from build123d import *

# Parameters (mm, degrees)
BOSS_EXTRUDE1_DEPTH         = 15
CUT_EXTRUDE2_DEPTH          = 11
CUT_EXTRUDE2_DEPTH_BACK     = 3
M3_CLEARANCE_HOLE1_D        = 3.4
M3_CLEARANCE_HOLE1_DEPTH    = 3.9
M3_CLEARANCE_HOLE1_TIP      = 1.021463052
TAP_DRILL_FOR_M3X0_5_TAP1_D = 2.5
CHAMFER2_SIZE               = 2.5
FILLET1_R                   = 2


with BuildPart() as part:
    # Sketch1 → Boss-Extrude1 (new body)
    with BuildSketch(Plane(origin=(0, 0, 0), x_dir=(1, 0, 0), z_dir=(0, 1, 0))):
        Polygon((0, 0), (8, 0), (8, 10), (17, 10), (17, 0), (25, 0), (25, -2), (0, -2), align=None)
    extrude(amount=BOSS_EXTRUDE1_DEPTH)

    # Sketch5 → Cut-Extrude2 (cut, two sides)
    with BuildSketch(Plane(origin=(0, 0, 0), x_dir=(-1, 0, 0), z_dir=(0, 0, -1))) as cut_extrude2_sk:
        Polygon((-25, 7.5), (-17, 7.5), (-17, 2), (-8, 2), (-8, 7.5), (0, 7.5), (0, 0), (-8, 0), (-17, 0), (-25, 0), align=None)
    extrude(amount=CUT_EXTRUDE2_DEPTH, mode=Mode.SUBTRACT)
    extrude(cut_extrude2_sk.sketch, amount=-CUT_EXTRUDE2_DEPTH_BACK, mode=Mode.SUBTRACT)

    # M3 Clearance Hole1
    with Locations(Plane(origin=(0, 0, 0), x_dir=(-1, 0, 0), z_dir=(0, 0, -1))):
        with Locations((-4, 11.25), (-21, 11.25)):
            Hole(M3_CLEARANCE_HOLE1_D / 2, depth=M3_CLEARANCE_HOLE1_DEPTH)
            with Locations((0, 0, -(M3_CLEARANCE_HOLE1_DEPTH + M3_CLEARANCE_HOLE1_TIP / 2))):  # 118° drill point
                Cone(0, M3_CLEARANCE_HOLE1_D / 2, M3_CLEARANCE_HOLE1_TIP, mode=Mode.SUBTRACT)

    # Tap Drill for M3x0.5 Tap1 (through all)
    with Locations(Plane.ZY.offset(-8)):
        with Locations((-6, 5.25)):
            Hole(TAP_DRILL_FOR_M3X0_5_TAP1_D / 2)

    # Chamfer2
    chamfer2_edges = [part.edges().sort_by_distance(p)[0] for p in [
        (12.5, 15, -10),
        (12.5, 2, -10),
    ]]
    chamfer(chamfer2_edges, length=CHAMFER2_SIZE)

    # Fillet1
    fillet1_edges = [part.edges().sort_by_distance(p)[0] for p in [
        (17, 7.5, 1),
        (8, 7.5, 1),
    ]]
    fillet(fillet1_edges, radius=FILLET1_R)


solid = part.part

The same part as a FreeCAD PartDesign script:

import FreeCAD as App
import Part
import Sketcher
from FreeCAD import Vector


def edges_at(feature, points):
    """Names of the edges that pass closest to the given points."""
    edges = feature.Shape.Edges
    near = lambda p: min(range(len(edges)), key=lambda i: edges[i].distToShape(Part.Vertex(*p))[0])
    return sorted({f"Edge{near(p) + 1}" for p in points})


def add_polygon(sketch, points):
    """Adds a closed chain of lines whose ends are joined by coincident constraints."""
    first, n = sketch.GeometryCount, len(points)
    for a, b in zip(points, points[1:] + points[:1]):
        sketch.addGeometry(Part.LineSegment(App.Vector(*a, 0), App.Vector(*b, 0)), False)
    for i in range(n):
        sketch.addConstraint(Sketcher.Constraint("Coincident", first + i, 2, first + (i + 1) % n, 1))

doc = App.newDocument("Part")
body = doc.addObject("PartDesign::Body", "Body")

sketch1 = body.newObject("Sketcher::SketchObject", "Sketch")
sketch1.AttachmentSupport = (doc.getObject("XZ_Plane"), [""])
sketch1.MapMode = "FlatFace"
add_polygon(sketch1, [(8, 0), (0, 0), (0, 2), (25, 2), (25, 0), (17, 0), (17, -10), (8, -10)])
sketch1.addConstraint([
    Sketcher.Constraint("Horizontal", 0),
    Sketcher.Constraint("Vertical", 1),
    Sketcher.Constraint("Horizontal", 2),
    Sketcher.Constraint("Vertical", 3),
    Sketcher.Constraint("Horizontal", 4),
    Sketcher.Constraint("Vertical", 5),
    Sketcher.Constraint("Horizontal", 6),
    Sketcher.Constraint("Vertical", 7),
    Sketcher.Constraint("Coincident", 0, 2, -1, 1),
    Sketcher.Constraint("PointOnObject", 3, 2, -1),
    Sketcher.Constraint("Equal", 0, 4),
    Sketcher.Constraint("DistanceX", 0, 2, 0, 1, 8.0),
    Sketcher.Constraint("DistanceX", 2, 1, 2, 2, 25.0),
    Sketcher.Constraint("DistanceY", 1, 1, 1, 2, 2.0),
    Sketcher.Constraint("DistanceY", 5, 2, 5, 1, 10.0),
])
pad1 = body.newObject("PartDesign::Pad", "Pad")
pad1.Profile = sketch1
pad1.Length = 15
pad1.Reversed = True

sketch2 = body.newObject("Sketcher::SketchObject", "Sketch001")
sketch2.AttachmentSupport = (doc.getObject("XY_Plane"), [""])
sketch2.MapMode = "FlatFace"
add_polygon(sketch2, [(17, 8), (25, 8), (25, 0), (0, 0), (0, 8), (8, 8), (8, 2), (17, 2)])
sketch2.addConstraint([
    Sketcher.Constraint("Horizontal", 0),
    Sketcher.Constraint("Vertical", 1),
    Sketcher.Constraint("Horizontal", 2),
    Sketcher.Constraint("Vertical", 3),
    Sketcher.Constraint("Horizontal", 4),
    Sketcher.Constraint("Vertical", 5),
    Sketcher.Constraint("Horizontal", 6),
    Sketcher.Constraint("Vertical", 7),
    Sketcher.Constraint("Coincident", 2, 2, -1, 1),
    Sketcher.Constraint("Horizontal", 0, 2, 3, 2),
    Sketcher.Constraint("Equal", 0, 4),
    Sketcher.Constraint("DistanceX", 0, 1, 0, 2, 8.0),
    Sketcher.Constraint("DistanceX", 2, 2, 2, 1, 25.0),
    Sketcher.Constraint("DistanceY", 1, 2, 1, 1, 7.5),
    Sketcher.Constraint("DistanceY", 5, 2, 5, 1, 5.5),
])
pocket1 = body.newObject("PartDesign::Pocket", "Pocket")
pocket1.Profile = sketch2
pocket1.Type = "ThroughAll"
pocket1.Midplane = True

sketch3 = body.newObject("Sketcher::SketchObject", "Sketch002")
sketch3.AttachmentSupport = (doc.getObject("XY_Plane"), [""])
sketch3.MapMode = "FlatFace"
sketch3.addGeometry([
    Part.Circle(Vector(4, 11.2, 0), Vector(0, 0, 1), 1.7),
    Part.Circle(Vector(21, 11.2, 0), Vector(0, 0, 1), 1.7),
], False)
sketch3.addConstraint([
    Sketcher.Constraint("Equal", 0, 1),
    Sketcher.Constraint("Horizontal", 0, 3, 1, 3),
    Sketcher.Constraint("Diameter", 0, 3.4),
    Sketcher.Constraint("DistanceX", -1, 1, 0, 3, 4.0),
    Sketcher.Constraint("DistanceX", -1, 1, 1, 3, 21.0),
    Sketcher.Constraint("DistanceY", -1, 1, 0, 3, 11.25),
])
doc.recompute()
hole = body.newObject("PartDesign::Hole", "Hole")
hole.Profile = sketch3
hole.ThreadType = "None"
hole.Diameter = 3.4
hole.DepthType = "Dimension"
hole.Depth = 3.9
hole.DrillPoint = "Angled"
hole.DrillPointAngle = 118
hole.Reversed = True

sketch4 = body.newObject("Sketcher::SketchObject", "Sketch003")
sketch4.AttachmentSupport = (doc.getObject("YZ_Plane"), [""])
sketch4.MapMode = "FlatFace"
sketch4.AttachmentOffset = App.Placement(Vector(0, 0, 8), App.Rotation())
sketch4.addGeometry(Part.Circle(Vector(5.2, -6, 0), Vector(0, 0, 1), 1.2), False)
sketch4.addConstraint([
    Sketcher.Constraint("Diameter", 0, 2.5),
    Sketcher.Constraint("DistanceY", 0, 3, -1, 1, 6.0),
    Sketcher.Constraint("DistanceX", -1, 1, 0, 3, 5.25),
])
doc.recompute()
hole2 = body.newObject("PartDesign::Hole", "Hole001")
hole2.Profile = sketch4
hole2.ThreadType = "None"
hole2.Diameter = 2.5
hole2.DepthType = "ThroughAll"
hole2.Reversed = True
doc.recompute()

chamfer = body.newObject("PartDesign::Chamfer", "Chamfer")
chamfer.Base = (hole2, edges_at(hole2, [(12.5, 15, -10), (12.5, 2, -10)]))
chamfer.Size = 2.5
doc.recompute()

fillet = body.newObject("PartDesign::Fillet", "Fillet")
fillet.Base = (chamfer, edges_at(chamfer, [(17, 7.5, 1), (8, 7.5, 1)]))
fillet.Radius = 2

doc.recompute()
